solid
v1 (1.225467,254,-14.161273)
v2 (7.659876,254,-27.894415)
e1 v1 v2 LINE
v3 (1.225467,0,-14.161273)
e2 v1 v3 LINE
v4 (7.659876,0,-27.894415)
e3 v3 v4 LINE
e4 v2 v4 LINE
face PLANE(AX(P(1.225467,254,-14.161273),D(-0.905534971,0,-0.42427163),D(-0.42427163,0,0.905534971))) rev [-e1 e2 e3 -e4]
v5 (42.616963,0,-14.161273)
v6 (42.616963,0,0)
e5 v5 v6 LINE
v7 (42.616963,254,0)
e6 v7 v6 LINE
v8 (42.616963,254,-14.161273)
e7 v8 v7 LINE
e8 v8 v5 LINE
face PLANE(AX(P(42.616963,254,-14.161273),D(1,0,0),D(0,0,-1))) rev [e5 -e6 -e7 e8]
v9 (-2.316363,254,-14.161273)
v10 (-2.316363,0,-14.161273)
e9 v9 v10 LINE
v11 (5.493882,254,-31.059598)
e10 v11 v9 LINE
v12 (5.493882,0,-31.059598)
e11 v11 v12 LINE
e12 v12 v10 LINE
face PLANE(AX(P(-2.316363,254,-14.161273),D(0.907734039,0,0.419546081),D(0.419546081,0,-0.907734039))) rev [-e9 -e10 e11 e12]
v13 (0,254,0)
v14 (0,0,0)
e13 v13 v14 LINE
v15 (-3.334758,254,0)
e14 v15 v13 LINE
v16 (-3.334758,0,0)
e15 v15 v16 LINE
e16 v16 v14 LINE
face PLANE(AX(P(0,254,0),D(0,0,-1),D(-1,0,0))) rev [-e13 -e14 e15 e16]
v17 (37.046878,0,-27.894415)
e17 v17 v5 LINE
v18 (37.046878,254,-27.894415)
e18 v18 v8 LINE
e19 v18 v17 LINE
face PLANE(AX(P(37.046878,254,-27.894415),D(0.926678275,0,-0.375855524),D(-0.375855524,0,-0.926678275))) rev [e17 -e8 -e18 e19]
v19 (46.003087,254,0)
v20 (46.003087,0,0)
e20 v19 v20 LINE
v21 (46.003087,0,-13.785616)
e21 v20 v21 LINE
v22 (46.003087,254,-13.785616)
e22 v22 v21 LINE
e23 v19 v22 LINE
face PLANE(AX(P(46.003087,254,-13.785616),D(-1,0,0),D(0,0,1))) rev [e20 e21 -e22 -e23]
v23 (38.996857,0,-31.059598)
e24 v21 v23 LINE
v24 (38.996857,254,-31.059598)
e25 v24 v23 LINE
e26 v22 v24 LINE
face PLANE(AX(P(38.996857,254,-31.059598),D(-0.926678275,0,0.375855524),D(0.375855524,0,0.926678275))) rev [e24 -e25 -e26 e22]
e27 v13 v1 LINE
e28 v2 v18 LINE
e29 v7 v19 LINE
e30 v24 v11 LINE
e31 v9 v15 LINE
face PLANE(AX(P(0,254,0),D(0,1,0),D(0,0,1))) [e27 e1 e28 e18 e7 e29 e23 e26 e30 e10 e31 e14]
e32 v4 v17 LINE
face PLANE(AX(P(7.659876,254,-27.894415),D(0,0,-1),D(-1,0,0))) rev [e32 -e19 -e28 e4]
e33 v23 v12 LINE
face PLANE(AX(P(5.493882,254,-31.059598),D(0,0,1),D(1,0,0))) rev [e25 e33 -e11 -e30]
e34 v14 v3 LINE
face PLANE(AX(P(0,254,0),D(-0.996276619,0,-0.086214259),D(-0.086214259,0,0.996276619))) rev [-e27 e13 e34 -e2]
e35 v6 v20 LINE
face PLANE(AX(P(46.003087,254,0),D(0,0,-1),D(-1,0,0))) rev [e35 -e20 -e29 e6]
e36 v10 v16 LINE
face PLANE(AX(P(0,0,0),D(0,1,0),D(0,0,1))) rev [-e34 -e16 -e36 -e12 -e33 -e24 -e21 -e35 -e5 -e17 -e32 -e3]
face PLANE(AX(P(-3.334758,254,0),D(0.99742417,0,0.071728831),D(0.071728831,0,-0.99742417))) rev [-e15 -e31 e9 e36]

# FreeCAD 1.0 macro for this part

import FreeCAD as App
import Part
import Sketcher

V = App.Vector
Q = App.Units.Quantity

doc = App.newDocument("Part")
body = doc.addObject("PartDesign::Body", "Body")

sketch1 = body.newObject("Sketcher::SketchObject", "Sketch")
sketch1.AttachmentSupport = (doc.getObject("XZ_Plane"), [""])
sketch1.MapMode = "FlatFace"
sketch1.addGeometry(Part.LineSegment(V(0, 0, 0), V(1.225467, -14.161273, 0)), False)
sketch1.addGeometry(Part.LineSegment(V(1.225467, -14.161273, 0), V(7.659876, -27.894415, 0)), False)
sketch1.addGeometry(Part.LineSegment(V(7.659876, -27.894415, 0), V(37.046878, -27.894415, 0)), False)
sketch1.addGeometry(Part.LineSegment(V(37.046878, -27.894415, 0), V(42.616963, -14.161273, 0)), False)
sketch1.addGeometry(Part.LineSegment(V(42.616963, -14.161273, 0), V(42.616963, 0, 0)), False)
sketch1.addGeometry(Part.LineSegment(V(42.616963, 0, 0), V(46.003087, 0, 0)), False)
sketch1.addGeometry(Part.LineSegment(V(46.003087, 0, 0), V(46.003087, -13.785616, 0)), False)
sketch1.addGeometry(Part.LineSegment(V(46.003087, -13.785616, 0), V(38.996857, -31.059598, 0)), False)
sketch1.addGeometry(Part.LineSegment(V(38.996857, -31.059598, 0), V(5.493882, -31.059598, 0)), False)
sketch1.addGeometry(Part.LineSegment(V(5.493882, -31.059598, 0), V(-2.316363, -14.161273, 0)), False)
sketch1.addGeometry(Part.LineSegment(V(-2.316363, -14.161273, 0), V(-3.334758, 0, 0)), False)
sketch1.addGeometry(Part.LineSegment(V(-3.334758, 0, 0), V(0, 0, 0)), False)
sketch1.addConstraint(Sketcher.Constraint("Coincident", 0, 2, 1, 1))
sketch1.addConstraint(Sketcher.Constraint("Coincident", 1, 2, 2, 1))
sketch1.addConstraint(Sketcher.Constraint("Coincident", 2, 2, 3, 1))
sketch1.addConstraint(Sketcher.Constraint("Coincident", 3, 2, 4, 1))
sketch1.addConstraint(Sketcher.Constraint("Coincident", 4, 2, 5, 1))
sketch1.addConstraint(Sketcher.Constraint("Coincident", 5, 2, 6, 1))
sketch1.addConstraint(Sketcher.Constraint("Coincident", 6, 2, 7, 1))
sketch1.addConstraint(Sketcher.Constraint("Coincident", 7, 2, 8, 1))
sketch1.addConstraint(Sketcher.Constraint("Coincident", 8, 2, 9, 1))
sketch1.addConstraint(Sketcher.Constraint("Coincident", 9, 2, 10, 1))
sketch1.addConstraint(Sketcher.Constraint("Coincident", 10, 2, 11, 1))
sketch1.addConstraint(Sketcher.Constraint("Coincident", 11, 2, 0, 1))
sketch1.addConstraint(Sketcher.Constraint("Horizontal", 2))
sketch1.addConstraint(Sketcher.Constraint("Vertical", 4))
sketch1.addConstraint(Sketcher.Constraint("Horizontal", 5))
sketch1.addConstraint(Sketcher.Constraint("Vertical", 6))
sketch1.addConstraint(Sketcher.Constraint("Horizontal", 8))
sketch1.addConstraint(Sketcher.Constraint("Horizontal", 11))
sketch1.addConstraint(Sketcher.Constraint("Coincident", 11, 2, -1, 1))
sketch1.addConstraint(Sketcher.Constraint("PointOnObject", 4, 2, -1))
sketch1.addConstraint(Sketcher.Constraint("Parallel", 3, 7))
sketch1.addConstraint(Sketcher.Constraint("Horizontal", 0, 2, 3, 2))
sketch1.addConstraint(Sketcher.Constraint("Horizontal", 3, 2, 9, 2))
sketch1.addConstraint(Sketcher.Constraint("Distance", 0, Q("14.214198 mm")))
sketch1.addConstraint(Sketcher.Constraint("DistanceX", 11, 1, 11, 2, Q("3.334758 mm")))
sketch1.addConstraint(Sketcher.Constraint("DistanceY", 7, 2, -1, 1, Q("31.059598 mm")))
sketch1.addConstraint(Sketcher.Constraint("DistanceY", 2, 2, 6, 2, Q("14.108799 mm")))
sketch1.addConstraint(Sketcher.Constraint("Distance", 3, Q("14.819751 mm")))
sketch1.addConstraint(Sketcher.Constraint("DistanceX", 2, 1, 2, 2, Q("29.387002 mm")))
sketch1.addConstraint(Sketcher.Constraint("DistanceX", 5, 1, 5, 2, Q("3.386124 mm")))
sketch1.addConstraint(Sketcher.Constraint("DistanceX", 8, 2, 8, 1, Q("33.502974 mm")))
sketch1.addConstraint(Sketcher.Constraint("DistanceY", 4, 1, 4, 2, Q("14.161273 mm")))
sketch1.addConstraint(Sketcher.Constraint("DistanceY", 6, 2, 6, 1, Q("13.785616 mm")))
sketch1.addConstraint(Sketcher.Constraint("DistanceX", 0, 2, 1, 2, Q("6.434409 mm")))
sketch1.addConstraint(Sketcher.Constraint("DistanceX", 9, 2, 0, 2, Q("3.54183 mm")))
pad1 = body.newObject("PartDesign::Pad", "Pad")
pad1.Profile = sketch1
pad1.Length = Q("10 in")
pad1.Reversed = True

doc.recompute()
